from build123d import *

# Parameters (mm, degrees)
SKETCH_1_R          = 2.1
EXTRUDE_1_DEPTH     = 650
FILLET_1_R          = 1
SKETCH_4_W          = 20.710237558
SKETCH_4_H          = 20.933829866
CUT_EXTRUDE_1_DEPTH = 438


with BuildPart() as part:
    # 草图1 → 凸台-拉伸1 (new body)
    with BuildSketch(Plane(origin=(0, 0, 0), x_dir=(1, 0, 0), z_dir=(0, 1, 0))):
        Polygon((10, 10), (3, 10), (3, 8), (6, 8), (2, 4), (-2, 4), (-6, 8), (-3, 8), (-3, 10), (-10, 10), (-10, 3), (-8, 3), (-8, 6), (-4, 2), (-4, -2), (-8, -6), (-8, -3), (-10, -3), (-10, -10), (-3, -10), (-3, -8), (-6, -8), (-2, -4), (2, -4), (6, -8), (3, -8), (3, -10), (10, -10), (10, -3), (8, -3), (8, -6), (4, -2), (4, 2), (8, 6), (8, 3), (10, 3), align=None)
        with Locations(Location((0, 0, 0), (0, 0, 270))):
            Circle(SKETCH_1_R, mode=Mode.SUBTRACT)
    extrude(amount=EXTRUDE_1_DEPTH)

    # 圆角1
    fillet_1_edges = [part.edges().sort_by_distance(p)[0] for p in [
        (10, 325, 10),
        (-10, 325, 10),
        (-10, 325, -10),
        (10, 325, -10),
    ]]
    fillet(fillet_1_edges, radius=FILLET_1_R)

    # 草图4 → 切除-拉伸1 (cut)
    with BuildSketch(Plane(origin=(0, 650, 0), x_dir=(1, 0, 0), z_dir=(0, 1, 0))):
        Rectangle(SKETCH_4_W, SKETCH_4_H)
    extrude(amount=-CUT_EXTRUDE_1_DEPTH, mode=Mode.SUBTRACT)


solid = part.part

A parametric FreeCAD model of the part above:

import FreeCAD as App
import Part
import Sketcher
Q = App.Units.Quantity


def edges_at(feature, points):
    """Names of the edges that pass closest to the given points."""
    edges = feature.Shape.Edges
    near = lambda p: min(range(len(edges)), key=lambda i: edges[i].distToShape(Part.Vertex(*p))[0])
    return sorted({f"Edge{near(p) + 1}" for p in points})


def add_polygon(sketch, points):
    """Adds a closed chain of lines whose ends are joined by coincident constraints."""
    first, n = sketch.GeometryCount, len(points)
    for a, b in zip(points, points[1:] + points[:1]):
        sketch.addGeometry(Part.LineSegment(App.Vector(*a, 0), App.Vector(*b, 0)), False)
    for i in range(n):
        sketch.addConstraint(Sketcher.Constraint("Coincident", first + i, 2, first + (i + 1) % n, 1))

doc = App.newDocument("Part")
body = doc.addObject("PartDesign::Body", "Body")

sketch1 = doc.addObject("Sketcher::SketchObject", "Sketch")
body.addObject(sketch1)
sketch1.AttachmentSupport = (doc.XZ_Plane, [""])
sketch1.MapMode = "FlatFace"
add_polygon(sketch1, [(10, -10), (3, -10), (3, -8), (6, -8), (2, -4), (-2, -4), (-6, -8), (-3, -8), (-3, -10), (-10, -10), (-10, -3), (-8, -3), (-8, -6), (-4, -2), (-4, 2), (-8, 6), (-8, 3), (-10, 3), (-10, 10), (-3, 10), (-3, 8), (-6, 8), (-2, 4), (2, 4), (6, 8), (3, 8), (3, 10), (10, 10), (10, 3), (8, 3), (8, 6), (4, 2), (4, -2), (8, -6), (8, -3), (10, -3)])
sketch1.addGeometry(Part.Circle(App.Vector(0, 0, 0), App.Vector(0, 0, 1), 2.1), False)
sketch1.addConstraint([
    Sketcher.Constraint("Horizontal", 0),
    Sketcher.Constraint("Vertical", 1),
    Sketcher.Constraint("Horizontal", 2),
    Sketcher.Constraint("Horizontal", 4),
    Sketcher.Constraint("Horizontal", 6),
    Sketcher.Constraint("Vertical", 7),
    Sketcher.Constraint("Horizontal", 8),
    Sketcher.Constraint("Vertical", 9),
    Sketcher.Constraint("Horizontal", 10),
    Sketcher.Constraint("Vertical", 11),
    Sketcher.Constraint("Vertical", 13),
    Sketcher.Constraint("Vertical", 15),
    Sketcher.Constraint("Horizontal", 16),
    Sketcher.Constraint("Vertical", 17),
    Sketcher.Constraint("Horizontal", 18),
    Sketcher.Constraint("Vertical", 19),
    Sketcher.Constraint("Horizontal", 20),
    Sketcher.Constraint("Horizontal", 22),
    Sketcher.Constraint("Horizontal", 24),
    Sketcher.Constraint("Vertical", 25),
    Sketcher.Constraint("Horizontal", 26),
    Sketcher.Constraint("Vertical", 27),
    Sketcher.Constraint("Horizontal", 28),
    Sketcher.Constraint("Vertical", 29),
    Sketcher.Constraint("Vertical", 31),
    Sketcher.Constraint("Vertical", 33),
    Sketcher.Constraint("Horizontal", 34),
    Sketcher.Constraint("Vertical", 35),
    Sketcher.Constraint("Coincident", 36, 3, -1, 1),
    Sketcher.Constraint("Symmetric", 0, 2, 18, 2, -1, 1),
    Sketcher.Constraint("Symmetric", 2, 2, 20, 2, -1, 1),
    Sketcher.Constraint("Symmetric", 3, 2, 21, 2, -1, 1),
    Sketcher.Constraint("Symmetric", 5, 2, 23, 2, -1, 1),
    Sketcher.Constraint("Symmetric", 7, 2, 25, 2, -1, 1),
    Sketcher.Constraint("Symmetric", 9, 2, 27, 2, -1, 1),
    Sketcher.Constraint("Symmetric", 11, 2, 29, 2, -1, 1),
    Sketcher.Constraint("Symmetric", 12, 2, 30, 2, -1, 1),
    Sketcher.Constraint("Symmetric", 14, 2, 32, 2, -1, 1),
    Sketcher.Constraint("Symmetric", 16, 2, 34, 2, -1, 1),
    Sketcher.Constraint("Symmetric", 2, 2, 5, 2, -2),
    Sketcher.Constraint("Symmetric", 0, 2, 7, 2, -2),
    Sketcher.Constraint("Symmetric", 16, 2, 27, 2, -2),
    Sketcher.Constraint("Symmetric", 14, 2, 29, 2, -2),
    Sketcher.Constraint("Perpendicular", 3, 5),
    Sketcher.Constraint("Parallel", 5, 12),
    Sketcher.Constraint("Perpendicular", 12, 14),
    Sketcher.Constraint("Perpendicular", 21, 23),
    Sketcher.Constraint("Perpendicular", 30, 32),
    Sketcher.Constraint("Horizontal", 13, 2, 30, 2),
    Sketcher.Constraint("Equal", 34, 1),
    Sketcher.Constraint("Equal", 26, 9),
    Sketcher.Constraint("Equal", 24, 11),
    Sketcher.Constraint("Equal", 22, 13),
    Sketcher.Constraint("Equal", 5, 12),
    Sketcher.Constraint("Diameter", 36, Q("4.2 mm")),
    Sketcher.Constraint("DistanceX", 0, 2, 0, 1, Q("7 mm")),
    Sketcher.Constraint("DistanceX", 2, 1, 2, 2, Q("3 mm")),
    Sketcher.Constraint("DistanceX", 4, 2, 4, 1, Q("4 mm")),
    Sketcher.Constraint("DistanceX", 10, 1, 10, 2, Q("2 mm")),
    Sketcher.Constraint("DistanceX", -1, 1, 0, 2, Q("3 mm")),
])
pad1 = doc.addObject("PartDesign::Pad", "Pad")
body.addObject(pad1)
pad1.Profile = sketch1
pad1.Length = 650
pad1.Reversed = True
doc.recompute()

fillet = doc.addObject("PartDesign::Fillet", "Fillet")
body.addObject(fillet)
fillet.Base = (pad1, edges_at(pad1, [
    (10, 325, 10),
    (-10, 325, 10),
    (-10, 325, -10),
    (10, 325, -10),
]))
fillet.Radius = 1

sketch2 = doc.addObject("Sketcher::SketchObject", "Sketch001")
body.addObject(sketch2)
sketch2.AttachmentSupport = (doc.XZ_Plane, [""])
sketch2.MapMode = "FlatFace"
sketch2.AttachmentOffset = App.Placement(App.Vector(0, 0, -650), App.Rotation())
add_polygon(sketch2, [(-10, -10), (-10, 10), (10, 10), (10, -10)])
sketch2.addConstraint([
    Sketcher.Constraint("Vertical", 0),
    Sketcher.Constraint("Horizontal", 1),
    Sketcher.Constraint("Vertical", 2),
    Sketcher.Constraint("Horizontal", 3),
    Sketcher.Constraint("Symmetric", 0, 2, 2, 2, -1, 1),
    Sketcher.Constraint("DistanceY", 0, 1, 0, 2, Q("20.93383 mm")),
    Sketcher.Constraint("DistanceX", 1, 1, 1, 2, Q("20.710238 mm")),
])
pocket1 = doc.addObject("PartDesign::Pocket", "Pocket")
body.addObject(pocket1)
pocket1.Profile = sketch2
pocket1.Length = 438
pocket1.Reversed = True

doc.recompute()
